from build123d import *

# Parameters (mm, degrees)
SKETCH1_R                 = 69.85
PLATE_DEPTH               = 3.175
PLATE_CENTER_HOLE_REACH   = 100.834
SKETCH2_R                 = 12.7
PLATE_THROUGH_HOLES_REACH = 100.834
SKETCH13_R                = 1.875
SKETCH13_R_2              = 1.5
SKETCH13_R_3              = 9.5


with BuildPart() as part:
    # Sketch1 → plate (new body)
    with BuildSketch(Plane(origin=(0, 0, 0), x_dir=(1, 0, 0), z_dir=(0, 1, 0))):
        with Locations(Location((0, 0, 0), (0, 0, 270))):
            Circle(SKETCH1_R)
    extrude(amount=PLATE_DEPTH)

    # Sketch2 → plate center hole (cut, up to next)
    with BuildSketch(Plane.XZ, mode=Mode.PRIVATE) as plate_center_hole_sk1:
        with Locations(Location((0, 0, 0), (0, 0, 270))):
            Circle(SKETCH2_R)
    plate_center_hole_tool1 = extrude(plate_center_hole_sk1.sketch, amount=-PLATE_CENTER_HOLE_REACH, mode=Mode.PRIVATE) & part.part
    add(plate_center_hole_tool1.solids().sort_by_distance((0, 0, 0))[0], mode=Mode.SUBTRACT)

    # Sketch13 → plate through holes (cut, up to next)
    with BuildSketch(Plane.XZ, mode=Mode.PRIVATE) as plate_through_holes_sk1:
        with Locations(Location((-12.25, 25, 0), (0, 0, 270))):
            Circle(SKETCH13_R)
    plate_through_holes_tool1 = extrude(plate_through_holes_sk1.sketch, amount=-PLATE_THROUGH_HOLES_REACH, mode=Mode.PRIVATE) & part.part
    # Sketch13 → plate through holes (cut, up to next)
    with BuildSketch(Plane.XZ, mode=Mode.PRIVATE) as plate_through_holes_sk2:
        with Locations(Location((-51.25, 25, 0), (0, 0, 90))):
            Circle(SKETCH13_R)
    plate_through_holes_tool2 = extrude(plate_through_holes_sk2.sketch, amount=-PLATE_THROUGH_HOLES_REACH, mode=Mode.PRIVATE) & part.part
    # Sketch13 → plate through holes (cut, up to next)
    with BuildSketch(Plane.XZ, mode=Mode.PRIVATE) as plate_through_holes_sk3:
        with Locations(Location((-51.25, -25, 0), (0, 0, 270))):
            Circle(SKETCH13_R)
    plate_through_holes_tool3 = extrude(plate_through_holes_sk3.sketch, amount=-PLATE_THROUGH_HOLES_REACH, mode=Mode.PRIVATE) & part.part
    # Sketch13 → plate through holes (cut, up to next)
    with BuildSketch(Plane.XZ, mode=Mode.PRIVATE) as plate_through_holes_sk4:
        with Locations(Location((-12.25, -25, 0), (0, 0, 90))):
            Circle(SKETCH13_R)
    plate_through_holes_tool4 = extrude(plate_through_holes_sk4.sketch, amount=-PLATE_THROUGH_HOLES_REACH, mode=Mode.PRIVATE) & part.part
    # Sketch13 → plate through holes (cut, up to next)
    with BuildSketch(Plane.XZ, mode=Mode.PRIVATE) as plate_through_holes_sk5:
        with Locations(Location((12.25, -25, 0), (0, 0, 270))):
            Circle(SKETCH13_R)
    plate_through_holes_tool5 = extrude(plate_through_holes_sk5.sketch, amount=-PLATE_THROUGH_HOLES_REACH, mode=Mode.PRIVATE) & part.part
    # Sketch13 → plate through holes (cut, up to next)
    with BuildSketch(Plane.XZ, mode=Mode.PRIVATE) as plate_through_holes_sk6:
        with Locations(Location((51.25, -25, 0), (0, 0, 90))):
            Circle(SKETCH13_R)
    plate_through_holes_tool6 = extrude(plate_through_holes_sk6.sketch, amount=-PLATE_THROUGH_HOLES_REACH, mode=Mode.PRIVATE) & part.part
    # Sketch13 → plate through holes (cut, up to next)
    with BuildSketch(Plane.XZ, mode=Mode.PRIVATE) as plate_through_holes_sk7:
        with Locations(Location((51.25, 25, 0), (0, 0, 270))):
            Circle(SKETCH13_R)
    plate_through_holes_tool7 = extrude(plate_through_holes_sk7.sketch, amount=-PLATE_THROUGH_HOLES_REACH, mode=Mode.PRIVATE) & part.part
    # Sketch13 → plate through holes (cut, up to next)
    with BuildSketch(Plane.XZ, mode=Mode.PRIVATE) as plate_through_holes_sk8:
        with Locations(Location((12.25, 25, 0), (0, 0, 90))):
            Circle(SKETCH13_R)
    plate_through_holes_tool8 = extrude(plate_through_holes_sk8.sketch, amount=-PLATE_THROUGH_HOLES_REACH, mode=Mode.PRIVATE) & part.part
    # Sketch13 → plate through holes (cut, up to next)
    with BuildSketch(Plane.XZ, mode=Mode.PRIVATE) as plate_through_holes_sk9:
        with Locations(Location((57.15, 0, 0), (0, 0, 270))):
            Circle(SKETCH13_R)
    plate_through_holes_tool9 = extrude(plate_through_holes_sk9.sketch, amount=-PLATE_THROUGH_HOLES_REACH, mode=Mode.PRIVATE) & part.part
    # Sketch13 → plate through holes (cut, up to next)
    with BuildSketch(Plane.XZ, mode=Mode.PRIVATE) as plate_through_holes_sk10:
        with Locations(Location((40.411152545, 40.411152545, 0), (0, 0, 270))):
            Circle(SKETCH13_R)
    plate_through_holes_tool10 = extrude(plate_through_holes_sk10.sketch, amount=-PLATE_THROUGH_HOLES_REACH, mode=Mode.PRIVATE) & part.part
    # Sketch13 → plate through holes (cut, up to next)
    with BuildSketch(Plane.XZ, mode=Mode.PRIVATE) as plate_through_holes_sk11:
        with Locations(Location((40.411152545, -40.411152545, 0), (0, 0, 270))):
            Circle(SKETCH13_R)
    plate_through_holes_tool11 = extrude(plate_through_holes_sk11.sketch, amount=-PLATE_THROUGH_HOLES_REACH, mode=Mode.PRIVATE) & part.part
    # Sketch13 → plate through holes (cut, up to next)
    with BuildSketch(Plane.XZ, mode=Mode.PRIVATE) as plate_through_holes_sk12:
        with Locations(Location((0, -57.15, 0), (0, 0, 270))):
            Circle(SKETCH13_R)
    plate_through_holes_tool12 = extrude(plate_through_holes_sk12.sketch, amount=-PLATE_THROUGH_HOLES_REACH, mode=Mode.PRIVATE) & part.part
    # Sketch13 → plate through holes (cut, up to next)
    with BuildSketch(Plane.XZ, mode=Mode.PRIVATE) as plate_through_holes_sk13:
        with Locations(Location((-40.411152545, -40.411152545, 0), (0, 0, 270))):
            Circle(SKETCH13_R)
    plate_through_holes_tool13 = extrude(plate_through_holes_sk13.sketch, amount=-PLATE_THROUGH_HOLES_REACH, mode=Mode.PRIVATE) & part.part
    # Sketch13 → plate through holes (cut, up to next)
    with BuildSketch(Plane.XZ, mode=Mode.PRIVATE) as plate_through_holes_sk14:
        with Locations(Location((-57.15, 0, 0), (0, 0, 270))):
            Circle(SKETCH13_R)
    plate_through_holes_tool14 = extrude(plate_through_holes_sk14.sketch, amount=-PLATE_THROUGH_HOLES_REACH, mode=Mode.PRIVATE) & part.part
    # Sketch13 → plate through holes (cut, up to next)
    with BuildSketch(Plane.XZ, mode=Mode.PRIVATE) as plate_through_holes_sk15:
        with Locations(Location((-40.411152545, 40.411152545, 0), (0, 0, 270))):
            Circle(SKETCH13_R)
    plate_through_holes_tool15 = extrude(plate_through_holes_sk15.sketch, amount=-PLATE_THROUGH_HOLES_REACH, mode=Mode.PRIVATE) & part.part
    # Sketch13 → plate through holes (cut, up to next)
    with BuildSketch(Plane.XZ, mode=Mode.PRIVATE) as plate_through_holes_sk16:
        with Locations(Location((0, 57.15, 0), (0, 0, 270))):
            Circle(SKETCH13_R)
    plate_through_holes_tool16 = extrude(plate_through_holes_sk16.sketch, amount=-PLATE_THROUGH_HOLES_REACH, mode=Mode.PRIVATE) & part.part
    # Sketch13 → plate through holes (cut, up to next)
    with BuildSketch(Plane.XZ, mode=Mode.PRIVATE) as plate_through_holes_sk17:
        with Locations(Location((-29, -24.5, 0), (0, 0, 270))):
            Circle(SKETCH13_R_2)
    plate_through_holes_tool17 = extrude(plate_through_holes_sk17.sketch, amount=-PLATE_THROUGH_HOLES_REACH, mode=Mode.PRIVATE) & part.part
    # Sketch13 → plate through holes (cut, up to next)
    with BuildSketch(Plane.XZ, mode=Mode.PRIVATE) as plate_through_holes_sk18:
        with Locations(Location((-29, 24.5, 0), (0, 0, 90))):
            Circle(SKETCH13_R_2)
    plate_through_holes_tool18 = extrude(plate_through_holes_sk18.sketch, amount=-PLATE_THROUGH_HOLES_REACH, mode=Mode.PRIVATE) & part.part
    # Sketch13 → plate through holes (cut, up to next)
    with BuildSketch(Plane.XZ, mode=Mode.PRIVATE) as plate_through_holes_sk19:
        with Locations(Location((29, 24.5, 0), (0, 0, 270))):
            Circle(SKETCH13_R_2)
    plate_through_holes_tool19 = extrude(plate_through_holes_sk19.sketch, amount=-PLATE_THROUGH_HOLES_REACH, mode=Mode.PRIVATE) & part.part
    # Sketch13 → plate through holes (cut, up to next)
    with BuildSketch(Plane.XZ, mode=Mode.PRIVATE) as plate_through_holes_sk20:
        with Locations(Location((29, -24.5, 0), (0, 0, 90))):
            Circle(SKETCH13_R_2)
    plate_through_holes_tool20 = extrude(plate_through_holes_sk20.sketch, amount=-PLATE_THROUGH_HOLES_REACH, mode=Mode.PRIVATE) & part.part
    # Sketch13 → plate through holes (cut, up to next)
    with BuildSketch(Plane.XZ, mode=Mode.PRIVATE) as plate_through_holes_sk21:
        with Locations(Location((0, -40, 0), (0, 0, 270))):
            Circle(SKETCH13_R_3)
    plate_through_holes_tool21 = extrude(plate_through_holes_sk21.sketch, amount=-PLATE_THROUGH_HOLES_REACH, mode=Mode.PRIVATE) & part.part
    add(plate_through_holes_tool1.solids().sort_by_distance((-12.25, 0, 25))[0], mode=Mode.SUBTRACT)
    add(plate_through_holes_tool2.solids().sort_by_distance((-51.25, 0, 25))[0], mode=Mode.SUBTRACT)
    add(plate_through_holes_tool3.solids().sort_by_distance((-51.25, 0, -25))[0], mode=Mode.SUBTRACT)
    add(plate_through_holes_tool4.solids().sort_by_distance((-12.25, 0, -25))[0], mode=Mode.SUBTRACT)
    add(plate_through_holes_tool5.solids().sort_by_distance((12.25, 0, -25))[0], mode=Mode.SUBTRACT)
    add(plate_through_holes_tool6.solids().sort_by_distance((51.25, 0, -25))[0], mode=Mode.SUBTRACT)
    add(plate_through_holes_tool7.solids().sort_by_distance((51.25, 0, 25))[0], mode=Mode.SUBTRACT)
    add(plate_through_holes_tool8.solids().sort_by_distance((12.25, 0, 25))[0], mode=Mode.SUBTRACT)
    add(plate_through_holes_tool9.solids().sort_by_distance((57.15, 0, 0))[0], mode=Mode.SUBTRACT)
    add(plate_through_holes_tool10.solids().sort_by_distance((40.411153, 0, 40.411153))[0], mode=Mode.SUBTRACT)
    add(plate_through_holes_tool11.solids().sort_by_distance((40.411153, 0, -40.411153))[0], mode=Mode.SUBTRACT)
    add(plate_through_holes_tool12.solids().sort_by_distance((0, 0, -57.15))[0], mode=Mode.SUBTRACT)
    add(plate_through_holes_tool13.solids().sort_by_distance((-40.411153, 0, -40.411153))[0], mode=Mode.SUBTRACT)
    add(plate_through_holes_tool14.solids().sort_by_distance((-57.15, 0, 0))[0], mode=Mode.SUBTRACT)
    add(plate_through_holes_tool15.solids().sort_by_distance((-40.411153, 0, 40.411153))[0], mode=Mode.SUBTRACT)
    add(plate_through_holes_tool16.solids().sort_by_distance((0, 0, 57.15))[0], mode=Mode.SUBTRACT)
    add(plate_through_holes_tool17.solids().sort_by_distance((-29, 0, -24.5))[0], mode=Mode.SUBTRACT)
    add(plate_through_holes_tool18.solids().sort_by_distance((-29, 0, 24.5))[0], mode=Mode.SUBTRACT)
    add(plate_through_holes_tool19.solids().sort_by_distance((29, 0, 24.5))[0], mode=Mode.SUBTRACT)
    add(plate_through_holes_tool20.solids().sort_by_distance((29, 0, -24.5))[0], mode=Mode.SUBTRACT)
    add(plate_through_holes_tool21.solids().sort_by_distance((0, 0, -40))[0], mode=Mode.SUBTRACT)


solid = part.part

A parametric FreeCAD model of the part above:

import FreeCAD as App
import Part
import Sketcher
from FreeCAD import Vector
Q = App.Units.Quantity

doc = App.newDocument("Part")
params = doc.addObject("Spreadsheet::Sheet", "Params")
for row, (alias, value) in enumerate([
    ("sketch1_diameter", "5.5 in"),
    ("pad1_length", "0.125 in"),
    ("sketch2_diameter", "1 in"),
], start=1):
    params.set(f"A{row}", alias)
    params.set(f"B{row}", "=" + value)
    params.setAlias(f"B{row}", alias)

body = doc.addObject("PartDesign::Body", "Body")

# Sketch on XZ plane
sketch1 = doc.addObject("Sketcher::SketchObject", "Sketch")
body.addObject(sketch1)
sketch1.AttachmentSupport = (doc.XZ_Plane, [""])
sketch1.MapMode = "FlatFace"
sketch1.addGeometry(Part.Circle(Vector(0, 0, 0), Vector(0, 0, 1), 70), False)
sketch1.addConstraint([
    Sketcher.Constraint("Coincident", 0, 3, -1, 1),
    Sketcher.Constraint("Diameter", 0, Q("5.5 in")),
])
sketch1.setExpression("Constraints[1]", "Params.sketch1_diameter")
pad1 = doc.addObject("PartDesign::Pad", "Pad")
body.addObject(pad1)
pad1.Profile = sketch1
pad1.setExpression("Length", "Params.pad1_length")
pad1.Reversed = True

# Sketch on XZ plane
sketch2 = doc.addObject("Sketcher::SketchObject", "Sketch001")
body.addObject(sketch2)
sketch2.AttachmentSupport = (doc.XZ_Plane, [""])
sketch2.MapMode = "FlatFace"
sketch2.addGeometry(Part.Circle(Vector(0, 0, 0), Vector(0, 0, 1), 13), False)
sketch2.addConstraint([
    Sketcher.Constraint("Coincident", 0, 3, -1, 1),
    Sketcher.Constraint("Diameter", 0, Q("1 in")),
])
sketch2.setExpression("Constraints[1]", "Params.sketch2_diameter")
pocket1 = doc.addObject("PartDesign::Pocket", "Pocket")
body.addObject(pocket1)
pocket1.Profile = sketch2
pocket1.Type = "UpToFirst"

# Sketch on XZ plane
sketch3 = doc.addObject("Sketcher::SketchObject", "Sketch002")
body.addObject(sketch3)
sketch3.AttachmentSupport = (doc.XZ_Plane, [""])
sketch3.MapMode = "FlatFace"
sketch3.addGeometry(Part.Circle(Vector(-12.2, 25, 0), Vector(0, 0, 1), 1.9), False)
sketch3.addConstraint([
    Sketcher.Constraint("Diameter", 0, 3.75),
    Sketcher.Constraint("DistanceX", 0, 3, -1, 1, 12.25),
    Sketcher.Constraint("DistanceY", -1, 1, 0, 3, 25.0),
])
pocket2 = doc.addObject("PartDesign::Pocket", "Pocket001")
body.addObject(pocket2)
pocket2.Profile = sketch3
pocket2.Type = "UpToFirst"

# Sketch on XZ plane
sketch4 = doc.addObject("Sketcher::SketchObject", "Sketch003")
body.addObject(sketch4)
sketch4.AttachmentSupport = (doc.XZ_Plane, [""])
sketch4.MapMode = "FlatFace"
sketch4.addGeometry(Part.Circle(Vector(-51.2, 25, 0), Vector(0, 0, 1), 1.9), False)
sketch4.addConstraint([
    Sketcher.Constraint("Diameter", 0, 3.75),
    Sketcher.Constraint("DistanceX", 0, 3, -1, 1, 51.25),
    Sketcher.Constraint("DistanceY", -1, 1, 0, 3, 25.0),
])
pocket3 = doc.addObject("PartDesign::Pocket", "Pocket002")
body.addObject(pocket3)
pocket3.Profile = sketch4
pocket3.Type = "UpToFirst"

# Sketch on XZ plane
sketch5 = doc.addObject("Sketcher::SketchObject", "Sketch004")
body.addObject(sketch5)
sketch5.AttachmentSupport = (doc.XZ_Plane, [""])
sketch5.MapMode = "FlatFace"
sketch5.addGeometry(Part.Circle(Vector(-51.2, -25, 0), Vector(0, 0, 1), 1.9), False)
sketch5.addConstraint([
    Sketcher.Constraint("Diameter", 0, 3.75),
    Sketcher.Constraint("DistanceX", 0, 3, -1, 1, 51.25),
    Sketcher.Constraint("DistanceY", 0, 3, -1, 1, 25.0),
])
pocket4 = doc.addObject("PartDesign::Pocket", "Pocket003")
body.addObject(pocket4)
pocket4.Profile = sketch5
pocket4.Type = "UpToFirst"

# Sketch on XZ plane
sketch6 = doc.addObject("Sketcher::SketchObject", "Sketch005")
body.addObject(sketch6)
sketch6.AttachmentSupport = (doc.XZ_Plane, [""])
sketch6.MapMode = "FlatFace"
sketch6.addGeometry(Part.Circle(Vector(-12.2, -25, 0), Vector(0, 0, 1), 1.9), False)
sketch6.addConstraint([
    Sketcher.Constraint("Diameter", 0, 3.75),
    Sketcher.Constraint("DistanceX", 0, 3, -1, 1, 12.25),
    Sketcher.Constraint("DistanceY", 0, 3, -1, 1, 25.0),
])
pocket5 = doc.addObject("PartDesign::Pocket", "Pocket004")
body.addObject(pocket5)
pocket5.Profile = sketch6
pocket5.Type = "UpToFirst"

# Sketch on XZ plane
sketch7 = doc.addObject("Sketcher::SketchObject", "Sketch006")
body.addObject(sketch7)
sketch7.AttachmentSupport = (doc.XZ_Plane, [""])
sketch7.MapMode = "FlatFace"
sketch7.addGeometry(Part.Circle(Vector(12.2, -25, 0), Vector(0, 0, 1), 1.9), False)
sketch7.addConstraint([
    Sketcher.Constraint("Diameter", 0, 3.75),
    Sketcher.Constraint("DistanceX", -1, 1, 0, 3, 12.25),
    Sketcher.Constraint("DistanceY", 0, 3, -1, 1, 25.0),
])
pocket6 = doc.addObject("PartDesign::Pocket", "Pocket005")
body.addObject(pocket6)
pocket6.Profile = sketch7
pocket6.Type = "UpToFirst"

# Sketch on XZ plane
sketch8 = doc.addObject("Sketcher::SketchObject", "Sketch007")
body.addObject(sketch8)
sketch8.AttachmentSupport = (doc.XZ_Plane, [""])
sketch8.MapMode = "FlatFace"
sketch8.addGeometry(Part.Circle(Vector(51.2, -25, 0), Vector(0, 0, 1), 1.9), False)
sketch8.addConstraint([
    Sketcher.Constraint("Diameter", 0, 3.75),
    Sketcher.Constraint("DistanceX", -1, 1, 0, 3, 51.25),
    Sketcher.Constraint("DistanceY", 0, 3, -1, 1, 25.0),
])
pocket7 = doc.addObject("PartDesign::Pocket", "Pocket006")
body.addObject(pocket7)
pocket7.Profile = sketch8
pocket7.Type = "UpToFirst"

# Sketch on XZ plane
sketch9 = doc.addObject("Sketcher::SketchObject", "Sketch008")
body.addObject(sketch9)
sketch9.AttachmentSupport = (doc.XZ_Plane, [""])
sketch9.MapMode = "FlatFace"
sketch9.addGeometry(Part.Circle(Vector(51.2, 25, 0), Vector(0, 0, 1), 1.9), False)
sketch9.addConstraint([
    Sketcher.Constraint("Diameter", 0, 3.75),
    Sketcher.Constraint("DistanceX", -1, 1, 0, 3, 51.25),
    Sketcher.Constraint("DistanceY", -1, 1, 0, 3, 25.0),
])
pocket8 = doc.addObject("PartDesign::Pocket", "Pocket007")
body.addObject(pocket8)
pocket8.Profile = sketch9
pocket8.Type = "UpToFirst"

# Sketch on XZ plane
sketch10 = doc.addObject("Sketcher::SketchObject", "Sketch009")
body.addObject(sketch10)
sketch10.AttachmentSupport = (doc.XZ_Plane, [""])
sketch10.MapMode = "FlatFace"
sketch10.addGeometry(Part.Circle(Vector(12.2, 25, 0), Vector(0, 0, 1), 1.9), False)
sketch10.addConstraint([
    Sketcher.Constraint("Diameter", 0, 3.75),
    Sketcher.Constraint("DistanceX", -1, 1, 0, 3, 12.25),
    Sketcher.Constraint("DistanceY", -1, 1, 0, 3, 25.0),
])
pocket9 = doc.addObject("PartDesign::Pocket", "Pocket008")
body.addObject(pocket9)
pocket9.Profile = sketch10
pocket9.Type = "UpToFirst"

# Sketch on XZ plane
sketch11 = doc.addObject("Sketcher::SketchObject", "Sketch010")
body.addObject(sketch11)
sketch11.AttachmentSupport = (doc.XZ_Plane, [""])
sketch11.MapMode = "FlatFace"
sketch11.addGeometry(Part.Circle(Vector(57.1, 0, 0), Vector(0, 0, 1), 1.9), False)
sketch11.addConstraint([
    Sketcher.Constraint("PointOnObject", 0, 3, -1),
    Sketcher.Constraint("Diameter", 0, 3.75),
    Sketcher.Constraint("DistanceX", -1, 1, 0, 3, Q("2.25 in")),
])
pocket10 = doc.addObject("PartDesign::Pocket", "Pocket009")
body.addObject(pocket10)
pocket10.Profile = sketch11
pocket10.Type = "UpToFirst"

# Sketch on XZ plane
sketch12 = doc.addObject("Sketcher::SketchObject", "Sketch011")
body.addObject(sketch12)
sketch12.AttachmentSupport = (doc.XZ_Plane, [""])
sketch12.MapMode = "FlatFace"
sketch12.addGeometry(Part.Circle(Vector(40.4, 40.4, 0), Vector(0, 0, 1), 1.9), False)
sketch12.addConstraint([
    Sketcher.Constraint("Diameter", 0, 3.75),
    Sketcher.Constraint("DistanceX", -1, 1, 0, 3, 40.411153),
    Sketcher.Constraint("DistanceY", -1, 1, 0, 3, 40.411153),
])
pocket11 = doc.addObject("PartDesign::Pocket", "Pocket010")
body.addObject(pocket11)
pocket11.Profile = sketch12
pocket11.Type = "UpToFirst"

# Sketch on XZ plane
sketch13 = doc.addObject("Sketcher::SketchObject", "Sketch012")
body.addObject(sketch13)
sketch13.AttachmentSupport = (doc.XZ_Plane, [""])
sketch13.MapMode = "FlatFace"
sketch13.addGeometry(Part.Circle(Vector(40.4, -40.4, 0), Vector(0, 0, 1), 1.9), False)
sketch13.addConstraint([
    Sketcher.Constraint("Diameter", 0, 3.75),
    Sketcher.Constraint("DistanceX", -1, 1, 0, 3, 40.411153),
    Sketcher.Constraint("DistanceY", 0, 3, -1, 1, 40.411153),
])
pocket12 = doc.addObject("PartDesign::Pocket", "Pocket011")
body.addObject(pocket12)
pocket12.Profile = sketch13
pocket12.Type = "UpToFirst"

# Sketch on XZ plane
sketch14 = doc.addObject("Sketcher::SketchObject", "Sketch013")
body.addObject(sketch14)
sketch14.AttachmentSupport = (doc.XZ_Plane, [""])
sketch14.MapMode = "FlatFace"
sketch14.addGeometry(Part.Circle(Vector(0, -57.1, 0), Vector(0, 0, 1), 1.9), False)
sketch14.addConstraint([
    Sketcher.Constraint("PointOnObject", 0, 3, -2),
    Sketcher.Constraint("Diameter", 0, 3.75),
    Sketcher.Constraint("DistanceY", 0, 3, -1, 1, Q("2.25 in")),
])
pocket13 = doc.addObject("PartDesign::Pocket", "Pocket012")
body.addObject(pocket13)
pocket13.Profile = sketch14
pocket13.Type = "UpToFirst"

# Sketch on XZ plane
sketch15 = doc.addObject("Sketcher::SketchObject", "Sketch014")
body.addObject(sketch15)
sketch15.AttachmentSupport = (doc.XZ_Plane, [""])
sketch15.MapMode = "FlatFace"
sketch15.addGeometry(Part.Circle(Vector(-40.4, -40.4, 0), Vector(0, 0, 1), 1.9), False)
sketch15.addConstraint([
    Sketcher.Constraint("Diameter", 0, 3.75),
    Sketcher.Constraint("DistanceX", 0, 3, -1, 1, 40.411153),
    Sketcher.Constraint("DistanceY", 0, 3, -1, 1, 40.411153),
])
pocket14 = doc.addObject("PartDesign::Pocket", "Pocket013")
body.addObject(pocket14)
pocket14.Profile = sketch15
pocket14.Type = "UpToFirst"

# Sketch on XZ plane
sketch16 = doc.addObject("Sketcher::SketchObject", "Sketch015")
body.addObject(sketch16)
sketch16.AttachmentSupport = (doc.XZ_Plane, [""])
sketch16.MapMode = "FlatFace"
sketch16.addGeometry(Part.Circle(Vector(-57.1, 0, 0), Vector(0, 0, 1), 1.9), False)
sketch16.addConstraint([
    Sketcher.Constraint("PointOnObject", 0, 3, -1),
    Sketcher.Constraint("Diameter", 0, 3.75),
    Sketcher.Constraint("DistanceX", 0, 3, -1, 1, Q("2.25 in")),
])
pocket15 = doc.addObject("PartDesign::Pocket", "Pocket014")
body.addObject(pocket15)
pocket15.Profile = sketch16
pocket15.Type = "UpToFirst"

# Sketch on XZ plane
sketch17 = doc.addObject("Sketcher::SketchObject", "Sketch016")
body.addObject(sketch17)
sketch17.AttachmentSupport = (doc.XZ_Plane, [""])
sketch17.MapMode = "FlatFace"
sketch17.addGeometry(Part.Circle(Vector(-40.4, 40.4, 0), Vector(0, 0, 1), 1.9), False)
sketch17.addConstraint([
    Sketcher.Constraint("Diameter", 0, 3.75),
    Sketcher.Constraint("DistanceX", 0, 3, -1, 1, 40.411153),
    Sketcher.Constraint("DistanceY", -1, 1, 0, 3, 40.411153),
])
pocket16 = doc.addObject("PartDesign::Pocket", "Pocket015")
body.addObject(pocket16)
pocket16.Profile = sketch17
pocket16.Type = "UpToFirst"

# Sketch on XZ plane
sketch18 = doc.addObject("Sketcher::SketchObject", "Sketch017")
body.addObject(sketch18)
sketch18.AttachmentSupport = (doc.XZ_Plane, [""])
sketch18.MapMode = "FlatFace"
sketch18.addGeometry(Part.Circle(Vector(0, 57.1, 0), Vector(0, 0, 1), 1.9), False)
sketch18.addConstraint([
    Sketcher.Constraint("PointOnObject", 0, 3, -2),
    Sketcher.Constraint("Diameter", 0, 3.75),
    Sketcher.Constraint("DistanceY", -1, 1, 0, 3, Q("2.25 in")),
])
pocket17 = doc.addObject("PartDesign::Pocket", "Pocket016")
body.addObject(pocket17)
pocket17.Profile = sketch18
pocket17.Type = "UpToFirst"

# Sketch on XZ plane
sketch19 = doc.addObject("Sketcher::SketchObject", "Sketch018")
body.addObject(sketch19)
sketch19.AttachmentSupport = (doc.XZ_Plane, [""])
sketch19.MapMode = "FlatFace"
sketch19.addGeometry(Part.Circle(Vector(-29, -24.5, 0), Vector(0, 0, 1), 1.5), False)
sketch19.addConstraint([
    Sketcher.Constraint("Diameter", 0, 3.0),
    Sketcher.Constraint("DistanceX", 0, 3, -1, 1, 29.0),
    Sketcher.Constraint("DistanceY", 0, 3, -1, 1, 24.5),
])
pocket18 = doc.addObject("PartDesign::Pocket", "Pocket017")
body.addObject(pocket18)
pocket18.Profile = sketch19
pocket18.Type = "UpToFirst"

# Sketch on XZ plane
sketch20 = doc.addObject("Sketcher::SketchObject", "Sketch019")
body.addObject(sketch20)
sketch20.AttachmentSupport = (doc.XZ_Plane, [""])
sketch20.MapMode = "FlatFace"
sketch20.addGeometry(Part.Circle(Vector(-29, 24.5, 0), Vector(0, 0, 1), 1.5), False)
sketch20.addConstraint([
    Sketcher.Constraint("Diameter", 0, 3.0),
    Sketcher.Constraint("DistanceX", 0, 3, -1, 1, 29.0),
    Sketcher.Constraint("DistanceY", -1, 1, 0, 3, 24.5),
])
pocket19 = doc.addObject("PartDesign::Pocket", "Pocket018")
body.addObject(pocket19)
pocket19.Profile = sketch20
pocket19.Type = "UpToFirst"

# Sketch on XZ plane
sketch21 = doc.addObject("Sketcher::SketchObject", "Sketch020")
body.addObject(sketch21)
sketch21.AttachmentSupport = (doc.XZ_Plane, [""])
sketch21.MapMode = "FlatFace"
sketch21.addGeometry(Part.Circle(Vector(29, 24.5, 0), Vector(0, 0, 1), 1.5), False)
sketch21.addConstraint([
    Sketcher.Constraint("Diameter", 0, 3.0),
    Sketcher.Constraint("DistanceX", -1, 1, 0, 3, 29.0),
    Sketcher.Constraint("DistanceY", -1, 1, 0, 3, 24.5),
])
pocket20 = doc.addObject("PartDesign::Pocket", "Pocket019")
body.addObject(pocket20)
pocket20.Profile = sketch21
pocket20.Type = "UpToFirst"

# Sketch on XZ plane
sketch22 = doc.addObject("Sketcher::SketchObject", "Sketch021")
body.addObject(sketch22)
sketch22.AttachmentSupport = (doc.XZ_Plane, [""])
sketch22.MapMode = "FlatFace"
sketch22.addGeometry(Part.Circle(Vector(29, -24.5, 0), Vector(0, 0, 1), 1.5), False)
sketch22.addConstraint([
    Sketcher.Constraint("Diameter", 0, 3.0),
    Sketcher.Constraint("DistanceX", -1, 1, 0, 3, 29.0),
    Sketcher.Constraint("DistanceY", 0, 3, -1, 1, 24.5),
])
pocket21 = doc.addObject("PartDesign::Pocket", "Pocket020")
body.addObject(pocket21)
pocket21.Profile = sketch22
pocket21.Type = "UpToFirst"

# Sketch on XZ plane
sketch23 = doc.addObject("Sketcher::SketchObject", "Sketch022")
body.addObject(sketch23)
sketch23.AttachmentSupport = (doc.XZ_Plane, [""])
sketch23.MapMode = "FlatFace"
sketch23.addGeometry(Part.Circle(Vector(0, -40, 0), Vector(0, 0, 1), 10), False)
sketch23.addConstraint([
    Sketcher.Constraint("PointOnObject", 0, 3, -2),
    Sketcher.Constraint("Diameter", 0, 19.0),
    Sketcher.Constraint("DistanceY", 0, 3, -1, 1, 40.0),
])
pocket22 = doc.addObject("PartDesign::Pocket", "Pocket021")
body.addObject(pocket22)
pocket22.Profile = sketch23
pocket22.Type = "UpToFirst"

doc.recompute()
